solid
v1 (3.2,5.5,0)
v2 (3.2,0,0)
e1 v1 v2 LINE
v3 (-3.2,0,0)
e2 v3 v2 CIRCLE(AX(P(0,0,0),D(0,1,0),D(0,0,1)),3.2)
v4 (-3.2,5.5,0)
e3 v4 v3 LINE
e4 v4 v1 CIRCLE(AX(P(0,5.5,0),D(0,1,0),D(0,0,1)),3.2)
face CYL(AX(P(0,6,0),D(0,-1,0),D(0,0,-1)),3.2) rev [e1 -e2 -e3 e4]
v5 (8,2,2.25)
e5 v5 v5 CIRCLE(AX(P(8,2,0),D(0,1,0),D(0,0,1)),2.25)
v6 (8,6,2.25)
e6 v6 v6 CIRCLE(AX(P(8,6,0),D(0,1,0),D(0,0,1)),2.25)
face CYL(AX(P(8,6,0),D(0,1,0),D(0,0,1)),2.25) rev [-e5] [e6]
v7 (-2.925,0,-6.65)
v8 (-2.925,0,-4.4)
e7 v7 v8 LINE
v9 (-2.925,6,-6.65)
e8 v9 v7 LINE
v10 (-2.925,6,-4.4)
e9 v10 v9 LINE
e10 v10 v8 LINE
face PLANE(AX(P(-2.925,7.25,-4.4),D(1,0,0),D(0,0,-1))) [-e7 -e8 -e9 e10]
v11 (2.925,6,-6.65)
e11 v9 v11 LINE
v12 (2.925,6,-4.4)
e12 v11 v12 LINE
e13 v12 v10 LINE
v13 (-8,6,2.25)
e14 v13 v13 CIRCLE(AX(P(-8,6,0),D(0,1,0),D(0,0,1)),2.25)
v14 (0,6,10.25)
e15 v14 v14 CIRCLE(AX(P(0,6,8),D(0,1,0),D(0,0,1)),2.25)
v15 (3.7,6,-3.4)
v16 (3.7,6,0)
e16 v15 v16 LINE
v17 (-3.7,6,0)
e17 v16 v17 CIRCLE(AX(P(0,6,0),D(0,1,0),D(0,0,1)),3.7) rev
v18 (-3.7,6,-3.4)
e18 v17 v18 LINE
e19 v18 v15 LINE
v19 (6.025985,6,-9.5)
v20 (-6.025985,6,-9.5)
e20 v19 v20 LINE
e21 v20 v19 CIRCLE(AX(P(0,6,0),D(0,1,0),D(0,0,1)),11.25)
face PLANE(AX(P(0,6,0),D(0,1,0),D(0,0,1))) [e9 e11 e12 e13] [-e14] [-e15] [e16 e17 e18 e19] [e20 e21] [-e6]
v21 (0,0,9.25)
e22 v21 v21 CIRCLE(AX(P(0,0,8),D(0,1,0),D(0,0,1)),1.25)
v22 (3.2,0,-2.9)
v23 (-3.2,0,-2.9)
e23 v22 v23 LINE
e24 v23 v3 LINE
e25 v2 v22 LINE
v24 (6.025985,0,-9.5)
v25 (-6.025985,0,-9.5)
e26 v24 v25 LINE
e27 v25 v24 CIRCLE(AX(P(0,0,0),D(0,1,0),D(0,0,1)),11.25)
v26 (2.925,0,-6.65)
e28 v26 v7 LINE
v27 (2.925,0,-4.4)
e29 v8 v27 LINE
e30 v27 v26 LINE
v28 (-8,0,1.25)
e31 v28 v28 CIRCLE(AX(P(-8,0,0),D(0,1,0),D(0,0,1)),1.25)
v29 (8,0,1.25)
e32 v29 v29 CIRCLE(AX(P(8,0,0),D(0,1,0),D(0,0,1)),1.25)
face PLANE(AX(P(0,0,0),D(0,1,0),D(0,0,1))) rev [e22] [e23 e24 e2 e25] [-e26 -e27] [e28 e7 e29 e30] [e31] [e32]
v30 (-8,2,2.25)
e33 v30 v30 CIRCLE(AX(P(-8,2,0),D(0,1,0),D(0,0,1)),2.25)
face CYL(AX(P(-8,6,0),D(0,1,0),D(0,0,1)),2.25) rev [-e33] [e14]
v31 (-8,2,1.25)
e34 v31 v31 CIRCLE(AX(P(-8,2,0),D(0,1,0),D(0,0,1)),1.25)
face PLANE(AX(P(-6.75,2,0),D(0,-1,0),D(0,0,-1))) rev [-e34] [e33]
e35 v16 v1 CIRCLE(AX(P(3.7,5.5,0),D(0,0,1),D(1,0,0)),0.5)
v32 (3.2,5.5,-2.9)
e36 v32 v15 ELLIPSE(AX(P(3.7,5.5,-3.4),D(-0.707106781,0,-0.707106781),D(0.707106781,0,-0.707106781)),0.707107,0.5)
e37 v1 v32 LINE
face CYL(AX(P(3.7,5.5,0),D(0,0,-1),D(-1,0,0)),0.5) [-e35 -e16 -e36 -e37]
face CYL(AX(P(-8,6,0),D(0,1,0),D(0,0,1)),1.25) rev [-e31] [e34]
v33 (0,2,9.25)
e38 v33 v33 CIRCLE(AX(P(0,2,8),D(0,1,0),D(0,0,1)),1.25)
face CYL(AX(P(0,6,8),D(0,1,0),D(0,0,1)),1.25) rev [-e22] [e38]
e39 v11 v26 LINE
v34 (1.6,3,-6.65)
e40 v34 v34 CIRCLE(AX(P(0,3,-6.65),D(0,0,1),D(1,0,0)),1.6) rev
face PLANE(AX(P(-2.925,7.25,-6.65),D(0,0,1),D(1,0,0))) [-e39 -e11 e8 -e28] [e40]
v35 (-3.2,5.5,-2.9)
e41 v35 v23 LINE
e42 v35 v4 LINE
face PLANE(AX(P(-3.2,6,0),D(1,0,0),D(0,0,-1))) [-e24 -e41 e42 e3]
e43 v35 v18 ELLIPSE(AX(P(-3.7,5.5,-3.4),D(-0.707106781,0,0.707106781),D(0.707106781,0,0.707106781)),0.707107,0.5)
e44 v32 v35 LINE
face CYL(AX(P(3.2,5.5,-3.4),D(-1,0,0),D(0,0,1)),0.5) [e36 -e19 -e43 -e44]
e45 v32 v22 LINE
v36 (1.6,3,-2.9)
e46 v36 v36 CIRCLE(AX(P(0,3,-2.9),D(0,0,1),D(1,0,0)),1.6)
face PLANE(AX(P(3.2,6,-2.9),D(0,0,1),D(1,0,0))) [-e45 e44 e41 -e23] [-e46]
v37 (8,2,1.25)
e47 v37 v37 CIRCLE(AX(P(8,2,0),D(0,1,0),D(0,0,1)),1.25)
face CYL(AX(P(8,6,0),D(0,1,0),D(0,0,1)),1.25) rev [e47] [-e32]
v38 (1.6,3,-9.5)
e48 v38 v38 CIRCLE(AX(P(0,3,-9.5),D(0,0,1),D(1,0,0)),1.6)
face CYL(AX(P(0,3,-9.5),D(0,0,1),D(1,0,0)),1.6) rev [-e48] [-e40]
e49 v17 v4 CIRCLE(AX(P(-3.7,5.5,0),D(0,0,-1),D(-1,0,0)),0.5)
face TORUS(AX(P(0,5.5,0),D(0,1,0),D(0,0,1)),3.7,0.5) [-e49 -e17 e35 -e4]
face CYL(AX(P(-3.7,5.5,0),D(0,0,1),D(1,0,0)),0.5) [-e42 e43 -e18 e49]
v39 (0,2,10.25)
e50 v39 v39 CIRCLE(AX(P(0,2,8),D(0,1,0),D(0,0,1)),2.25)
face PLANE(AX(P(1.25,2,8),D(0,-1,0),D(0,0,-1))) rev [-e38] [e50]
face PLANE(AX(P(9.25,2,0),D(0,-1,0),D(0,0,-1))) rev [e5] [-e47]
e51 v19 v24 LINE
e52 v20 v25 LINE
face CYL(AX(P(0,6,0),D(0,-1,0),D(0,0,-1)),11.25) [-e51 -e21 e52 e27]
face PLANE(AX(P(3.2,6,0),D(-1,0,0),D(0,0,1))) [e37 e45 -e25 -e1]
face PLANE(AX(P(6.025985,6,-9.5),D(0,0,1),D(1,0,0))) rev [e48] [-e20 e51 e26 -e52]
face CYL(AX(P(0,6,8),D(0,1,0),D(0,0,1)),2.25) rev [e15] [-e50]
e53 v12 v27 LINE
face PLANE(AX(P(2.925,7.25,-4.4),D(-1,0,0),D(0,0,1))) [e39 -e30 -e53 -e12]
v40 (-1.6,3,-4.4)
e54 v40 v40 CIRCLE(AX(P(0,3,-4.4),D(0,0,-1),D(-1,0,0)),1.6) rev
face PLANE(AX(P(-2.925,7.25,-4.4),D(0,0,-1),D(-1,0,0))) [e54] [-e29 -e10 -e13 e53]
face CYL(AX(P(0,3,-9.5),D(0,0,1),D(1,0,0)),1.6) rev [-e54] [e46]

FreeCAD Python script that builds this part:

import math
import FreeCAD as App
import Part
import Sketcher
from FreeCAD import Vector


def edges_at(feature, points):
    """Names of the edges that pass closest to the given points."""
    edges = feature.Shape.Edges
    near = lambda p: min(range(len(edges)), key=lambda i: edges[i].distToShape(Part.Vertex(*p))[0])
    return sorted({f"Edge{near(p) + 1}" for p in points})

doc = App.newDocument("Part")
body = doc.addObject("PartDesign::Body", "Body")

sketch1 = body.newObject("Sketcher::SketchObject", "Sketch")
sketch1.AttachmentSupport = (doc.getObject("XZ_Plane"), [""])
sketch1.MapMode = "FlatFace"
sketch1.addGeometry([
    Part.LineSegment(Vector(6.025985, -9.5, 0), Vector(-6.025985, -9.5, 0)),
    Part.ArcOfCircle(Part.Circle(Vector(0, 0, 0), Vector(0, 0, 1), 11.25), math.radians(-57.612461), math.radians(237.612461)),
    Part.ArcOfCircle(Part.Circle(Vector(0, 0, 0), Vector(0, 0, 1), 3.2), math.radians(0), math.radians(180)),
    Part.LineSegment(Vector(-3.2, 0, 0), Vector(-3.2, -2.9, 0)),
    Part.LineSegment(Vector(-3.2, -2.9, 0), Vector(3.2, -2.9, 0)),
    Part.LineSegment(Vector(3.2, -2.9, 0), Vector(3.2, 0, 0)),
], False)
sketch1.addConstraint([
    Sketcher.Constraint("Coincident", 0, 1, 1, 1),
    Sketcher.Constraint("Coincident", 1, 2, 0, 2),
    Sketcher.Constraint("Tangent", 2, 2, 3, 1),
    Sketcher.Constraint("Coincident", 3, 2, 4, 1),
    Sketcher.Constraint("Coincident", 4, 2, 5, 1),
    Sketcher.Constraint("Tangent", 5, 2, 2, 1),
    Sketcher.Constraint("Horizontal", 0),
    Sketcher.Constraint("Vertical", 3),
    Sketcher.Constraint("Horizontal", 4),
    Sketcher.Constraint("Vertical", 5),
    Sketcher.Constraint("Coincident", 1, 3, -1, 1),
    Sketcher.Constraint("Coincident", 2, 3, -1, 1),
    Sketcher.Constraint("Radius", 2, 3.2),
    Sketcher.Constraint("Radius", 1, 11.25),
    Sketcher.Constraint("DistanceY", 3, 2, 3, 1, 2.9),
    Sketcher.Constraint("DistanceY", 0, 1, -1, 1, 9.5),
])
pad1 = body.newObject("PartDesign::Pad", "Pad")
pad1.Profile = sketch1
pad1.Length = 6
pad1.Reversed = True

sketch2 = body.newObject("Sketcher::SketchObject", "Sketch001")
sketch2.AttachmentSupport = (doc.getObject("XZ_Plane"), [""])
sketch2.MapMode = "FlatFace"
sketch2.AttachmentOffset = App.Placement(Vector(0, 0, -6), App.Rotation())
sketch2.addGeometry([
    Part.Circle(Vector(8, 0, 0), Vector(0, 0, 1), 1.25),
    Part.Circle(Vector(-8, 0, 0), Vector(0, 0, 1), 1.25),
    Part.Circle(Vector(0, 0, 0), Vector(0, 0, 1), 1.25),
    Part.Circle(Vector(0, 8, 0), Vector(0, 0, 1), 1.25),
], False)
sketch2.addConstraint([
    Sketcher.Constraint("Coincident", 2, 3, -1, 1),
    Sketcher.Constraint("Equal", 0, 1),
    Sketcher.Constraint("Equal", 1, 2),
    Sketcher.Constraint("Equal", 2, 3),
    Sketcher.Constraint("Symmetric", 0, 3, 1, 3, -1, 1),
    Sketcher.Constraint("PointOnObject", 0, 3, -1),
    Sketcher.Constraint("PointOnObject", 3, 3, -2),
    Sketcher.Constraint("Diameter", 0, 2.5),
    Sketcher.Constraint("DistanceX", -1, 1, 0, 3, 8.0),
    Sketcher.Constraint("DistanceY", -1, 1, 3, 3, 8.0),
])
doc.recompute()
hole = body.newObject("PartDesign::Hole", "Hole")
hole.Profile = sketch2
hole.ThreadType = "None"
hole.Diameter = 2.5
hole.DepthType = "ThroughAll"
hole.HoleCutType = "Counterbore"
hole.HoleCutDiameter = 4.5
hole.HoleCutDepth = 4
hole.Reversed = True
doc.recompute()

fillet = body.newObject("PartDesign::Fillet", "Fillet")
fillet.Base = (hole, edges_at(hole, [
    (0, 6, 3.2),
    (3.2, 6, -1.45),
    (0, 6, -2.9),
    (-3.2, 6, -1.45),
]))
fillet.Radius = 0.5

sketch3 = body.newObject("Sketcher::SketchObject", "Sketch002")
sketch3.AttachmentSupport = (doc.getObject("XY_Plane"), [""])
sketch3.MapMode = "FlatFace"
sketch3.addGeometry(Part.Circle(Vector(0, 3, 0), Vector(0, 0, 1), 1.6), False)
sketch3.addConstraint([
    Sketcher.Constraint("PointOnObject", 0, 3, -2),
    Sketcher.Constraint("Diameter", 0, 3.2),
    Sketcher.Constraint("DistanceY", -1, 1, 0, 3, 3.0),
])
pocket1 = body.newObject("PartDesign::Pocket", "Pocket")
pocket1.Profile = sketch3
pocket1.Type = "ThroughAll"

sketch4 = body.newObject("Sketcher::SketchObject", "Sketch003")
sketch4.AttachmentSupport = (doc.getObject("XZ_Plane"), [""])
sketch4.MapMode = "FlatFace"
sketch4.addGeometry([
    Part.LineSegment(Vector(-2.925, -6.65, 0), Vector(-2.925, -4.4, 0)),
    Part.LineSegment(Vector(-2.925, -4.4, 0), Vector(2.925, -4.4, 0)),
    Part.LineSegment(Vector(2.925, -4.4, 0), Vector(2.925, -6.65, 0)),
    Part.LineSegment(Vector(2.925, -6.65, 0), Vector(-2.925, -6.65, 0)),
], False)
sketch4.addConstraint([
    Sketcher.Constraint("Coincident", 0, 2, 1, 1),
    Sketcher.Constraint("Coincident", 1, 2, 2, 1),
    Sketcher.Constraint("Coincident", 2, 2, 3, 1),
    Sketcher.Constraint("Coincident", 3, 2, 0, 1),
    Sketcher.Constraint("Vertical", 0),
    Sketcher.Constraint("Horizontal", 1),
    Sketcher.Constraint("Vertical", 2),
    Sketcher.Constraint("Horizontal", 3),
    Sketcher.Constraint("DistanceX", 1, 1, 1, 2, 5.85),
    Sketcher.Constraint("DistanceY", 0, 1, 0, 2, 2.25),
    Sketcher.Constraint("DistanceY", 0, 2, -1, 1, 4.4),
    Sketcher.Constraint("DistanceX", 0, 2, -1, 1, 2.925),
])
pocket2 = body.newObject("PartDesign::Pocket", "Pocket001")
pocket2.Profile = sketch4
pocket2.Length = 7.25

doc.recompute()
